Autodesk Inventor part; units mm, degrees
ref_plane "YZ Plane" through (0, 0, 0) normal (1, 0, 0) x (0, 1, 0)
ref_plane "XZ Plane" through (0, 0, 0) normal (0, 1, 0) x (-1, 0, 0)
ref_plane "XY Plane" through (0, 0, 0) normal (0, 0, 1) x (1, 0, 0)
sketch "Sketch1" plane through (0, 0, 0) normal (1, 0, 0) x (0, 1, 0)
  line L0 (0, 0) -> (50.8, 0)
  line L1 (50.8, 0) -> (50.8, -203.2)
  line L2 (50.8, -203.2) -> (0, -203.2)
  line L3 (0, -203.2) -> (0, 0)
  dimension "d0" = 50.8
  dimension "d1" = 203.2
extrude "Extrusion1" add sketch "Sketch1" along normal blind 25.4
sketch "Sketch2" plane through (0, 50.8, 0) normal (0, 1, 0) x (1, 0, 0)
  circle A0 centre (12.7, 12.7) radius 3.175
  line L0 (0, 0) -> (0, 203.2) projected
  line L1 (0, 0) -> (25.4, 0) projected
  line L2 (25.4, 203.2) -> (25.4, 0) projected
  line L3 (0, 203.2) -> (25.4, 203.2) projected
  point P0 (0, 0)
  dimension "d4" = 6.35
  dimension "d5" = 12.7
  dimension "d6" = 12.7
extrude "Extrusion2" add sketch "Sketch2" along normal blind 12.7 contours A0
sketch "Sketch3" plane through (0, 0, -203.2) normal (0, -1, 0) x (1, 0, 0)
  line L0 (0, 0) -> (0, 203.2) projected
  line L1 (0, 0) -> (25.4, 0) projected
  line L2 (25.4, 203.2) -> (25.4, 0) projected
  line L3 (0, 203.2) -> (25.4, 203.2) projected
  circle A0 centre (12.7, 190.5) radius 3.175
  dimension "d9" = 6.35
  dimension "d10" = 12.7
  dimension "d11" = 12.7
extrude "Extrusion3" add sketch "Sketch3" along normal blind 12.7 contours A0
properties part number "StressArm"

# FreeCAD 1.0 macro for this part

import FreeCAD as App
import Part
import Sketcher
Q = App.Units.Quantity


def add_polygon(sketch, points):
    """Adds a closed chain of lines whose ends are joined by coincident constraints."""
    first, n = sketch.GeometryCount, len(points)
    for a, b in zip(points, points[1:] + points[:1]):
        sketch.addGeometry(Part.LineSegment(App.Vector(*a, 0), App.Vector(*b, 0)), False)
    for i in range(n):
        sketch.addConstraint(Sketcher.Constraint("Coincident", first + i, 2, first + (i + 1) % n, 1))

doc = App.newDocument("Part")
params = doc.addObject("Spreadsheet::Sheet", "Params")
for row, (alias, value) in enumerate([
    ("sketch1_width", "2 in"),
    ("sketch1_height", "8 in"),
    ("pad1_length", "1 in"),
    ("sketch2_diameter", "0.25 in"),
    ("pad2_length", "0.5 in"),
    ("sketch3_diameter", "0.25 in"),
    ("pad3_length", "0.5 in"),
], start=1):
    params.set(f"A{row}", alias)
    params.set(f"B{row}", "=" + value)
    params.setAlias(f"B{row}", alias)

body = doc.addObject("PartDesign::Body", "Body")

# Sketch on YZ plane
sketch1 = body.newObject("Sketcher::SketchObject", "Sketch")
sketch1.AttachmentSupport = (doc.getObject("YZ_Plane"), [""])
sketch1.MapMode = "FlatFace"
add_polygon(sketch1, [(51, 0), (0, 0), (0, -203), (51, -203)])  # lines 0-3
sketch1.addConstraint([
    Sketcher.Constraint("Horizontal", 0),
    Sketcher.Constraint("Vertical", 1),
    Sketcher.Constraint("Horizontal", 2),
    Sketcher.Constraint("Vertical", 3),
    Sketcher.Constraint("Coincident", 0, 2, -1, 1),
    Sketcher.Constraint("DistanceX", 0, 2, 0, 1, Q("2 in")),
    Sketcher.Constraint("DistanceY", 1, 2, 1, 1, Q("8 in")),
])
sketch1.setExpression("Constraints[9]", "Params.sketch1_width")
sketch1.setExpression("Constraints[10]", "Params.sketch1_height")
pad1 = body.newObject("PartDesign::Pad", "Pad")
pad1.Profile = sketch1
pad1.setExpression("Length", "Params.pad1_length")

# Sketch on XZ plane
sketch2 = body.newObject("Sketcher::SketchObject", "Sketch001")
sketch2.AttachmentSupport = (doc.getObject("XZ_Plane"), [""])
sketch2.MapMode = "FlatFace"
sketch2.AttachmentOffset = App.Placement(App.Vector(0, 0, -2 * 25.4), App.Rotation())
sketch2.addGeometry(Part.Circle(App.Vector(12.7, -12.7, 0), App.Vector(0, 0, 1), 3.2), False)
sketch2.addConstraint([
    Sketcher.Constraint("Diameter", 0, Q("0.25 in")),
    Sketcher.Constraint("DistanceX", -1, 1, 0, 3, Q("0.5 in")),
    Sketcher.Constraint("DistanceY", 0, 3, -1, 1, Q("0.5 in")),
])
sketch2.setExpression("Constraints[0]", "Params.sketch2_diameter")
pad2 = body.newObject("PartDesign::Pad", "Pad001")
pad2.Profile = sketch2
pad2.setExpression("Length", "Params.pad2_length")
pad2.Reversed = True

# Sketch on XZ plane
sketch3 = body.newObject("Sketcher::SketchObject", "Sketch002")
sketch3.AttachmentSupport = (doc.getObject("XZ_Plane"), [""])
sketch3.MapMode = "FlatFace"
sketch3.addGeometry(Part.Circle(App.Vector(12.7, -12.7, 0), App.Vector(0, 0, 1), 3.2), False)
sketch3.addConstraint([
    Sketcher.Constraint("Diameter", 0, Q("0.25 in")),
    Sketcher.Constraint("DistanceX", -1, 1, 0, 3, Q("0.5 in")),
    Sketcher.Constraint("DistanceY", 0, 3, -1, 1, Q("0.5 in")),
])
sketch3.setExpression("Constraints[0]", "Params.sketch3_diameter")
pad3 = body.newObject("PartDesign::Pad", "Pad002")
pad3.Profile = sketch3
pad3.setExpression("Length", "Params.pad3_length")

doc.recompute()
